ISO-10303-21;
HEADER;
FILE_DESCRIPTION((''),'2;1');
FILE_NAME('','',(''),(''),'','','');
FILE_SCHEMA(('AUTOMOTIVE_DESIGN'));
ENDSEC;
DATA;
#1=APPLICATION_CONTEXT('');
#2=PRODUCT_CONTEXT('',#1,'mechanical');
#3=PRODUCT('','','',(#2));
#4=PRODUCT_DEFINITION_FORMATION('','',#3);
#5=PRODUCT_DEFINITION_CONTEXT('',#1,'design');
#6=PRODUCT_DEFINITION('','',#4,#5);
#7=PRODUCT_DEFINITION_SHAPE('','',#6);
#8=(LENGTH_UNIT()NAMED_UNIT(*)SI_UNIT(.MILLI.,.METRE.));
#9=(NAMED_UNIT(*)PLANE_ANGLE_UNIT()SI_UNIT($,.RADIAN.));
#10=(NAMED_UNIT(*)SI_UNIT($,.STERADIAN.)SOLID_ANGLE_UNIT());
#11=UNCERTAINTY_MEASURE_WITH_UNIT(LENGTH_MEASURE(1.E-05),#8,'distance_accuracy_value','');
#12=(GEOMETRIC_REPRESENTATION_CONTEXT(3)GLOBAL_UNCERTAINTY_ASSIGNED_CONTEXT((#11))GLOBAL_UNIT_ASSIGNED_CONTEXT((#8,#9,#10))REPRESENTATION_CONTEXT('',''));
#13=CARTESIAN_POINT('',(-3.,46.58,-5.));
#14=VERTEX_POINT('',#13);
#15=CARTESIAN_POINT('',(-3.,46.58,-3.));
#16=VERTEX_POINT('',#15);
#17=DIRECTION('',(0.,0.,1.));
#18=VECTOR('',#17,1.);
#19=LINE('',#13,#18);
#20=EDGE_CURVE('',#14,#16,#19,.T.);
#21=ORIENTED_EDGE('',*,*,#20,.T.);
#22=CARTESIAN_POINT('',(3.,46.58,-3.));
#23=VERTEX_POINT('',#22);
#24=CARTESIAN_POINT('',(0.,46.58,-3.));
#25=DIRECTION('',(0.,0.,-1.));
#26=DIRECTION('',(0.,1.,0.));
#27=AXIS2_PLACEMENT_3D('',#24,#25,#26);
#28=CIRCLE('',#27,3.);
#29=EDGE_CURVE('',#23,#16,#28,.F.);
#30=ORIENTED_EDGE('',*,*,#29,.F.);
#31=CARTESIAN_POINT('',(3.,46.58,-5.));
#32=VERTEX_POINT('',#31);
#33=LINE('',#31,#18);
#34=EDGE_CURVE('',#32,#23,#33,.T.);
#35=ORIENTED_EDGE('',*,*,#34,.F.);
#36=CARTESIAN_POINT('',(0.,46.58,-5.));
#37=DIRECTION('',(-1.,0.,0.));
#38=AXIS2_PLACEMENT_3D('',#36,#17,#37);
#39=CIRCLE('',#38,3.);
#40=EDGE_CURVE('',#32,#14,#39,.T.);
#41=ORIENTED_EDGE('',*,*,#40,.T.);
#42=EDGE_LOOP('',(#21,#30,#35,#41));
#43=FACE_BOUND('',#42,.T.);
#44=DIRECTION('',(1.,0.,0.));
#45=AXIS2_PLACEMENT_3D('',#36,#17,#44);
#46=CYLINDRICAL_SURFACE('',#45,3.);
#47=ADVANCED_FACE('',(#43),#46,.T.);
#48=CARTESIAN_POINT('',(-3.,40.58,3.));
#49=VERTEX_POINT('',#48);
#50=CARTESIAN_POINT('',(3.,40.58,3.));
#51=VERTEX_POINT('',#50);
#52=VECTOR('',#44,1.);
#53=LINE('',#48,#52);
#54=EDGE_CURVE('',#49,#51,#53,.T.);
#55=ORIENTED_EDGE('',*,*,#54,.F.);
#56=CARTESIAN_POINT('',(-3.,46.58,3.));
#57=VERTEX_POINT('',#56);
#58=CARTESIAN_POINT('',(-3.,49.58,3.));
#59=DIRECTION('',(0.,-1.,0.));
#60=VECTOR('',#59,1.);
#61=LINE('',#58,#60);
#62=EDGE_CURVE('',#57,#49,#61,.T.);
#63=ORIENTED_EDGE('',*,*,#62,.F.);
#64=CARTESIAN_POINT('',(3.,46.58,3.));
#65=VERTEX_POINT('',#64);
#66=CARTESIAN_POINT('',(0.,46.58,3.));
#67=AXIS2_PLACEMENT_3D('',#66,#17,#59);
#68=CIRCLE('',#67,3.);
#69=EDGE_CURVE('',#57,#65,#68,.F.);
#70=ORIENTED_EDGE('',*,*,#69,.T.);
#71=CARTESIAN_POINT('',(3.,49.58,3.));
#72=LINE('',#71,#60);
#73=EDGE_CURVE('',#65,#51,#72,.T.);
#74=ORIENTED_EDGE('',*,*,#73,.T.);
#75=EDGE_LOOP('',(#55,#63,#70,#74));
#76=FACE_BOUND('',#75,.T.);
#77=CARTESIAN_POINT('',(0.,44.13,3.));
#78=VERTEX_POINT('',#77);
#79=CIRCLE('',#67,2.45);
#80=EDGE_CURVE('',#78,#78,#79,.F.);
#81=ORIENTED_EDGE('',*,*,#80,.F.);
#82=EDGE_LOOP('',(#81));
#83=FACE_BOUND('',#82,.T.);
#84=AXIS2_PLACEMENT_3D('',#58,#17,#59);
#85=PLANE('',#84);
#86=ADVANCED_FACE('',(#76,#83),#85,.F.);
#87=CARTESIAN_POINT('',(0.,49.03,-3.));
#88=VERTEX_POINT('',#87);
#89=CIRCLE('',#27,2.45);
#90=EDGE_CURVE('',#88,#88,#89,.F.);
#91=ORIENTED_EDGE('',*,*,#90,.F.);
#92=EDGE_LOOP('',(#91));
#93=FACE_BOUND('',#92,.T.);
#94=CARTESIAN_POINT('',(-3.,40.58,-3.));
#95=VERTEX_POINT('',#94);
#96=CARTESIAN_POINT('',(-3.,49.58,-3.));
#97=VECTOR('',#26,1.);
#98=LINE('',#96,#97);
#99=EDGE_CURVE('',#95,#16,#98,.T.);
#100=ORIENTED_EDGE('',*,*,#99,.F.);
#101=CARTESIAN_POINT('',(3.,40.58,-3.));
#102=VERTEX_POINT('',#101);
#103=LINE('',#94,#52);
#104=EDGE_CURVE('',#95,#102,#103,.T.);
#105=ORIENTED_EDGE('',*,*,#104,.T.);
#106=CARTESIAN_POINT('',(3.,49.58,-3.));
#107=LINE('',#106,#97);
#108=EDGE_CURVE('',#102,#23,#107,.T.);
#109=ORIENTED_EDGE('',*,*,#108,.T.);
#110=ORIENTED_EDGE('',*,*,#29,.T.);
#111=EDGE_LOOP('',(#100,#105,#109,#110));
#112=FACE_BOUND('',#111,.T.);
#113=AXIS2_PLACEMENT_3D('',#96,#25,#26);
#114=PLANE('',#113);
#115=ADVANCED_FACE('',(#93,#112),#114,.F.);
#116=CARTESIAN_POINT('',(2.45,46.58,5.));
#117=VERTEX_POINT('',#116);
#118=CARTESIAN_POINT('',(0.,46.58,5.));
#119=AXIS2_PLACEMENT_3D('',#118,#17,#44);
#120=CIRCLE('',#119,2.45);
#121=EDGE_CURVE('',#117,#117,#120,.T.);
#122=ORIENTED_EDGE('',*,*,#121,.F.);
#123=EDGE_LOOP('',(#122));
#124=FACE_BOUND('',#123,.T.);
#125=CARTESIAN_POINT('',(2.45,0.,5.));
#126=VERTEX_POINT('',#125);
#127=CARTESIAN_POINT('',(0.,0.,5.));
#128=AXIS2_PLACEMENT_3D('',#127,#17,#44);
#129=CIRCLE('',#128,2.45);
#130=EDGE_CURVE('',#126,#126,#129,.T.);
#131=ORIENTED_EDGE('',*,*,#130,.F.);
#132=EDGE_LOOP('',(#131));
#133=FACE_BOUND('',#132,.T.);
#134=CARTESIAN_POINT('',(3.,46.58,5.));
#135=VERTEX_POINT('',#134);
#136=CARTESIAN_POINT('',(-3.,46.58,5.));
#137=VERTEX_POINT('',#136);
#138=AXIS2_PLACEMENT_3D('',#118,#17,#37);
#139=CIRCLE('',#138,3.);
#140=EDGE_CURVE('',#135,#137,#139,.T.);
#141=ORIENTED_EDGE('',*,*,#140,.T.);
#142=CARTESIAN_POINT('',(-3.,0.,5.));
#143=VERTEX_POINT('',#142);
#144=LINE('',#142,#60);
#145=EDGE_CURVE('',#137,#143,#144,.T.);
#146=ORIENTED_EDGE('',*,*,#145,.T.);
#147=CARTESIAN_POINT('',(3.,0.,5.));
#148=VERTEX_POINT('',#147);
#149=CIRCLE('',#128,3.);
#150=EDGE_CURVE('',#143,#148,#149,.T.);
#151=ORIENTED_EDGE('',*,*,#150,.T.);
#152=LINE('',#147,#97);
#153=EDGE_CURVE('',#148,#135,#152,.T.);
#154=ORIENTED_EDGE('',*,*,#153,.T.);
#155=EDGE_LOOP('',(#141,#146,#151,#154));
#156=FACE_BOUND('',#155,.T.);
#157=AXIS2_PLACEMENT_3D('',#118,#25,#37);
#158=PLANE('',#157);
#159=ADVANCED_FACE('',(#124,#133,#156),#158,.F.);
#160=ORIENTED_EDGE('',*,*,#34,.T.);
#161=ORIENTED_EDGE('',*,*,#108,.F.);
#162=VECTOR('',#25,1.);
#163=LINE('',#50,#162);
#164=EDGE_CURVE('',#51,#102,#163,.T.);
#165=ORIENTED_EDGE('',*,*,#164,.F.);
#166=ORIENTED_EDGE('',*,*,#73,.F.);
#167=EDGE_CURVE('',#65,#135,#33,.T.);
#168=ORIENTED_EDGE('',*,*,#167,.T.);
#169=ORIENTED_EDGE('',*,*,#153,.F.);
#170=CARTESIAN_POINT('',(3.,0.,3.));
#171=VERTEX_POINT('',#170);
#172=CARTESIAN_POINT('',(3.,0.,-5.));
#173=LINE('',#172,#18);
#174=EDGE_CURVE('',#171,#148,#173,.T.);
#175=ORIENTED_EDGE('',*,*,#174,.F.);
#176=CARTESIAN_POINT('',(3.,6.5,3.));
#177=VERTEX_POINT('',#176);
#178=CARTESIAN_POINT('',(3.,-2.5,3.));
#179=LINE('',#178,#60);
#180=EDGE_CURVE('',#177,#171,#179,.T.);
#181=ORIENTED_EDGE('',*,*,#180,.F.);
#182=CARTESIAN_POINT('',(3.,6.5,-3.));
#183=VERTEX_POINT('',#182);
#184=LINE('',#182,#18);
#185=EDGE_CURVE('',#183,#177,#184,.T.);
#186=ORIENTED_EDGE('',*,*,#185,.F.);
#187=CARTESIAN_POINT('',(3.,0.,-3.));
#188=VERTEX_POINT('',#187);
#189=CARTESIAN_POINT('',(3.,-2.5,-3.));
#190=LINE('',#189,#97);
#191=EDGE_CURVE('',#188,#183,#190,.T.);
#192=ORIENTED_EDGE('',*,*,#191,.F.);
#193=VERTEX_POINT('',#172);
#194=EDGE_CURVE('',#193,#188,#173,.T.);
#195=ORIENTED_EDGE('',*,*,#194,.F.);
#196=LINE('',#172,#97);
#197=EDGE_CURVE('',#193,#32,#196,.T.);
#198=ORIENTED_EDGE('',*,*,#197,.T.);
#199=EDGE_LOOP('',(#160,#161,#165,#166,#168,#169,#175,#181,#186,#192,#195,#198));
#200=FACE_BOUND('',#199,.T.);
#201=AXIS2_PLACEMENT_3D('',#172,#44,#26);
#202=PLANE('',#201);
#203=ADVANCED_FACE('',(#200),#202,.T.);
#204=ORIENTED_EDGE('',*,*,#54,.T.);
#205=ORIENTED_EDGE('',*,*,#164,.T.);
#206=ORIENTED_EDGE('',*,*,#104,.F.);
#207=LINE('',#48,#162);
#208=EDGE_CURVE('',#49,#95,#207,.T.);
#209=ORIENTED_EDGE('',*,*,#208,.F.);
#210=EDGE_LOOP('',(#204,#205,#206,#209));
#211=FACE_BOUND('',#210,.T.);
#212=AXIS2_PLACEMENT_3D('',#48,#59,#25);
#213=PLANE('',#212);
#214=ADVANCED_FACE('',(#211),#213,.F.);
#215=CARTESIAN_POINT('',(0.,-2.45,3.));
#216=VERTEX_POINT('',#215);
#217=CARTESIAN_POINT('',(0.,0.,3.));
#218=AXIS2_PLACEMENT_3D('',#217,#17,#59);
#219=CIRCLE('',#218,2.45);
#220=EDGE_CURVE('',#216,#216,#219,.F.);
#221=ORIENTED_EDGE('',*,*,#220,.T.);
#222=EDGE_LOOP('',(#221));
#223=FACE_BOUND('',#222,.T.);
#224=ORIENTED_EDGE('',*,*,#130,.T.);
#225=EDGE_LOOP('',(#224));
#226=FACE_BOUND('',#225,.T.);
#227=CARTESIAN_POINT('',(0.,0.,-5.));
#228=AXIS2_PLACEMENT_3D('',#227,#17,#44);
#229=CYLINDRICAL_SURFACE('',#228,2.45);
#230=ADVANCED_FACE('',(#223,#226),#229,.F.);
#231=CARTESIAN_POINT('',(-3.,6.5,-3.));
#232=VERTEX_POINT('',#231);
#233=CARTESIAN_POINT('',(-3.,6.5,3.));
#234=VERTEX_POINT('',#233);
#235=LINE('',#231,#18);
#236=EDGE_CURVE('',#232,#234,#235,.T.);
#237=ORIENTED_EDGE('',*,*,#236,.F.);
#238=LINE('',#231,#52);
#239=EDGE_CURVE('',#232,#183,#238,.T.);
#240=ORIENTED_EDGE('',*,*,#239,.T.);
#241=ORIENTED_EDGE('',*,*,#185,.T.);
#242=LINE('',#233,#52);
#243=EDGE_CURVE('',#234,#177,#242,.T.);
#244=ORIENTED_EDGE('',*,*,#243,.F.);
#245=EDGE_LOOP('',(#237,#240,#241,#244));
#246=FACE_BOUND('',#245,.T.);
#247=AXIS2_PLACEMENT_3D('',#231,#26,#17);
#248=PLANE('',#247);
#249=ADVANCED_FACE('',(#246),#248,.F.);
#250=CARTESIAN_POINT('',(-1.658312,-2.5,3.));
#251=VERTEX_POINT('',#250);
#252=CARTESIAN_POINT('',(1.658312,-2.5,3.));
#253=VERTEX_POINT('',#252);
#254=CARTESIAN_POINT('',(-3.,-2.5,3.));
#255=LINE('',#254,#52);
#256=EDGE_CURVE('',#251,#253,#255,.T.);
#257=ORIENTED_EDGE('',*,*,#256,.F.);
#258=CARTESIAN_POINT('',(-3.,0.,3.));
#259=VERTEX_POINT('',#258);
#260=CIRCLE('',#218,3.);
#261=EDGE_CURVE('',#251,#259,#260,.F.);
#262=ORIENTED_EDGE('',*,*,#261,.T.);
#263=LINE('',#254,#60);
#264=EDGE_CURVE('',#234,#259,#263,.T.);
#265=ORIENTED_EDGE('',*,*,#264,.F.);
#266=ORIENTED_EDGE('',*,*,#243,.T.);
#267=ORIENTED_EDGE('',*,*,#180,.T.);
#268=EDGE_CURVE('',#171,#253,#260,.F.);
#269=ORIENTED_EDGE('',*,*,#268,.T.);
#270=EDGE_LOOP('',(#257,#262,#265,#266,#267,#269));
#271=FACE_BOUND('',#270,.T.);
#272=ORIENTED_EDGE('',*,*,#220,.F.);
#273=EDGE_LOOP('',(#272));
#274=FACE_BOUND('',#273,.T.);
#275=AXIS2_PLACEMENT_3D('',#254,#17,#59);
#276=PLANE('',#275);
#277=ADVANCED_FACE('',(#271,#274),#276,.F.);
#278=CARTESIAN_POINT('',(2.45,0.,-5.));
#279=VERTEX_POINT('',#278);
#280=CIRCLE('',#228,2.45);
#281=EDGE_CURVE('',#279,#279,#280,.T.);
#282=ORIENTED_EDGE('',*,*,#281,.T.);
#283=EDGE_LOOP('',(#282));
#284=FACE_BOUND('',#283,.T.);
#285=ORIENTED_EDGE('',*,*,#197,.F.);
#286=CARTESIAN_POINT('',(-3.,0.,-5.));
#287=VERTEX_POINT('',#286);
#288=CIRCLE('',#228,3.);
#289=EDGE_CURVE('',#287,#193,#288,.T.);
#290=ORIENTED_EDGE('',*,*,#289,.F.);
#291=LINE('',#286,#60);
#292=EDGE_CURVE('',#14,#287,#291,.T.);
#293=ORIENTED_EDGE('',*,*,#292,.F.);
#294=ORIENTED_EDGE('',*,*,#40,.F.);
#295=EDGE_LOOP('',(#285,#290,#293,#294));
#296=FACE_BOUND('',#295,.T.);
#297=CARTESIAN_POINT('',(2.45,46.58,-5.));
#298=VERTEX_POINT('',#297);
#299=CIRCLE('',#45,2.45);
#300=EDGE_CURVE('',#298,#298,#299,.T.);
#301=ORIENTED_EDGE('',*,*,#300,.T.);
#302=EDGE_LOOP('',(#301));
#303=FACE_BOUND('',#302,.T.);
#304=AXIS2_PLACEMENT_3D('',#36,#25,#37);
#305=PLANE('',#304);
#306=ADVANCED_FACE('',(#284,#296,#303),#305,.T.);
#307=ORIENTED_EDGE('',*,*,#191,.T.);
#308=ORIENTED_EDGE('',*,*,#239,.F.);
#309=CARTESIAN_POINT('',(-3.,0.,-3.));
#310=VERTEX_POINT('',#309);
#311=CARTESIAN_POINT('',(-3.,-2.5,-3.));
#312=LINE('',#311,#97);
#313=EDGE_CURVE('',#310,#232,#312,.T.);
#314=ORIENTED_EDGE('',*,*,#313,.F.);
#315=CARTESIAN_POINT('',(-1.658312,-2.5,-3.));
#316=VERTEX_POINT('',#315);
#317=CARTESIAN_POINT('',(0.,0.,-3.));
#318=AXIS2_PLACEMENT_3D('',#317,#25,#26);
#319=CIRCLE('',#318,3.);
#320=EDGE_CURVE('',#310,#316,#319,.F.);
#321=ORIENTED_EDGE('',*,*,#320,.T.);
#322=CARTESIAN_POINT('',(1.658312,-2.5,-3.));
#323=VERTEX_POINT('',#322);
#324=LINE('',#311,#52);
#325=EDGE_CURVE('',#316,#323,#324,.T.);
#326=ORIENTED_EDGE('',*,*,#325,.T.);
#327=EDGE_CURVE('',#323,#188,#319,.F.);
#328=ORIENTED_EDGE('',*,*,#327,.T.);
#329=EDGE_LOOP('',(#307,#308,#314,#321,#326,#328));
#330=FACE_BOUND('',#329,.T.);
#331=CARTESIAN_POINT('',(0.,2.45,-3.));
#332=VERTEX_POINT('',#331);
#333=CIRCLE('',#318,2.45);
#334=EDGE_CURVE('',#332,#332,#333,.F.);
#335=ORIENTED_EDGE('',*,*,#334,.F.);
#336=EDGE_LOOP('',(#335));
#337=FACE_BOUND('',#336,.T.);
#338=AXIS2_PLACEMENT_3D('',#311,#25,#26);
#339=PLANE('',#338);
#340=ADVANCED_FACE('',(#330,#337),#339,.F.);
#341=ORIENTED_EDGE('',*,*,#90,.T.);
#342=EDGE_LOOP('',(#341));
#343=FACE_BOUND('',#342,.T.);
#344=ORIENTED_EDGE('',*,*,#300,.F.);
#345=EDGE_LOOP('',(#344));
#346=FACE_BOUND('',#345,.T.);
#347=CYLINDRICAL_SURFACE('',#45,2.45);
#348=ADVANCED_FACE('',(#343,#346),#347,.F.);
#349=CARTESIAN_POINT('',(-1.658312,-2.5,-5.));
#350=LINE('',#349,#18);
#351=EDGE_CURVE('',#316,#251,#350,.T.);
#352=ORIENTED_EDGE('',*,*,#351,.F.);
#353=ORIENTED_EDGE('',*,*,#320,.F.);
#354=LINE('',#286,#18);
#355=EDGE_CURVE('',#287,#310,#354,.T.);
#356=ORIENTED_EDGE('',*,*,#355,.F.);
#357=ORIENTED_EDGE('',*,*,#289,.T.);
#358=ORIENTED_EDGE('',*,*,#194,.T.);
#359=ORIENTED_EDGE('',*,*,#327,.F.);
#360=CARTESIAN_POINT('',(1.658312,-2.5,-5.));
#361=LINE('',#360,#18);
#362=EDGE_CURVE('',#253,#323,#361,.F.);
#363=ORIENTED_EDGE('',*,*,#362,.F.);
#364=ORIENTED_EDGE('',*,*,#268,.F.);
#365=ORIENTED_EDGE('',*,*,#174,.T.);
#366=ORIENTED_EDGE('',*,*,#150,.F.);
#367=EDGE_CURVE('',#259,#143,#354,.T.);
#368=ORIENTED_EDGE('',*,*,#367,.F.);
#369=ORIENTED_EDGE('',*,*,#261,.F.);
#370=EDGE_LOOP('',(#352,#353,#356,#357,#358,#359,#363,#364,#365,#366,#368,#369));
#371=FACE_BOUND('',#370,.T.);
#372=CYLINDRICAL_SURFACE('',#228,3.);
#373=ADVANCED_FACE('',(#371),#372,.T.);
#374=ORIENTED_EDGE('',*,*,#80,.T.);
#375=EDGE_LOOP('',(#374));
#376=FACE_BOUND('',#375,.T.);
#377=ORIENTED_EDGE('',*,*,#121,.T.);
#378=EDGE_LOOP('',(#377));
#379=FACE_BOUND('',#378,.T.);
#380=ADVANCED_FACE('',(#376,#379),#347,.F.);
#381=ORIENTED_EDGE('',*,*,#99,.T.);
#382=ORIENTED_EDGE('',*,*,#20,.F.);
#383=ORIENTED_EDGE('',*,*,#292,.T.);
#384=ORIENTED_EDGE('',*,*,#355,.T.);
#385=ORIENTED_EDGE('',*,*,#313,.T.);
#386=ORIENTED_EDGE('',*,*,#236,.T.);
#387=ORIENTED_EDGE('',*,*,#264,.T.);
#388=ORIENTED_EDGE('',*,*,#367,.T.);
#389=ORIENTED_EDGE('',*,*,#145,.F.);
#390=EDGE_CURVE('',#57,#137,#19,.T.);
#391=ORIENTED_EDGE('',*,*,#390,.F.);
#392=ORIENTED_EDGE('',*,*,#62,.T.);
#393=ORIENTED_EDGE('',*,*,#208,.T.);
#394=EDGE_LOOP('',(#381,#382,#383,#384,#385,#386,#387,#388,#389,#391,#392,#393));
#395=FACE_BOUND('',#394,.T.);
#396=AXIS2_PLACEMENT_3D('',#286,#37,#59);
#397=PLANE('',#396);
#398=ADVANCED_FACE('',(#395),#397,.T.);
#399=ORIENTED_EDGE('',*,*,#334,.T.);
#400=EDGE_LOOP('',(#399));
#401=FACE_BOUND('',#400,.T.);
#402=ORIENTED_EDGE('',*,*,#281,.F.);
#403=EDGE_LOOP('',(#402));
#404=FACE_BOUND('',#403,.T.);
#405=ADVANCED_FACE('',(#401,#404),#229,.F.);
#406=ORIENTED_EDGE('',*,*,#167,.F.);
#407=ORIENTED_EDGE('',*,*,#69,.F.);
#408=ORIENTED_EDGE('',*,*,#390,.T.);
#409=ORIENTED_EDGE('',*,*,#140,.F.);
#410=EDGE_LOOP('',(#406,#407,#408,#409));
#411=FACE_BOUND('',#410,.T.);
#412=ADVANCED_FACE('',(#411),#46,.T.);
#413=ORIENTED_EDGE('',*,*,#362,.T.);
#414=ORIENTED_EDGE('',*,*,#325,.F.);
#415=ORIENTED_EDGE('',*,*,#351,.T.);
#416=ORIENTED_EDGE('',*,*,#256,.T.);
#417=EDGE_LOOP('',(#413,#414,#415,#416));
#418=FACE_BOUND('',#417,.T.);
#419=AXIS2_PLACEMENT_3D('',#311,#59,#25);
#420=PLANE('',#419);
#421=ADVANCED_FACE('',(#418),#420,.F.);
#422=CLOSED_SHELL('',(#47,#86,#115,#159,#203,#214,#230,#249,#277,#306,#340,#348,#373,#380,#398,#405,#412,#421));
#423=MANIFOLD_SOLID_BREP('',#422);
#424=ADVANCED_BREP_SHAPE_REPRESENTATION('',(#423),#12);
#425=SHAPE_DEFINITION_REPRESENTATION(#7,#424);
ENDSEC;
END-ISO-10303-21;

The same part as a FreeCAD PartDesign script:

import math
import FreeCAD as App
import Part
import Sketcher

V = App.Vector
Q = App.Units.Quantity


def add_polygon(sketch, points):
    """Adds a closed chain of lines whose ends are joined by coincident constraints."""
    first, n = sketch.GeometryCount, len(points)
    for a, b in zip(points, points[1:] + points[:1]):
        sketch.addGeometry(Part.LineSegment(App.Vector(*a, 0), App.Vector(*b, 0)), False)
    for i in range(n):
        sketch.addConstraint(Sketcher.Constraint("Coincident", first + i, 2, first + (i + 1) % n, 1))

doc = App.newDocument("Part")
body = doc.addObject("PartDesign::Body", "Body")

# Sketch on XY plane
sketch1 = body.newObject("Sketcher::SketchObject", "Sketch")
sketch1.AttachmentSupport = (doc.getObject("XY_Plane"), [""])
sketch1.MapMode = "FlatFace"
sketch1.addGeometry(Part.LineSegment(V(-3, 46.6, 0), V(-3, 0, 0)), False)
sketch1.addGeometry(Part.ArcOfCircle(Part.Circle(V(0, 0, 0), V(0, 0, 1), 3), math.radians(180), math.radians(360)), False)
sketch1.addGeometry(Part.LineSegment(V(3, 0, 0), V(3, 46.6, 0)), False)
sketch1.addGeometry(Part.ArcOfCircle(Part.Circle(V(0, 46.6, 0), V(0, 0, 1), 3), math.radians(0), math.radians(180)), False)
sketch1.addGeometry(Part.Circle(V(0, 0, 0), V(0, 0, 1), 2.5), False)
sketch1.addGeometry(Part.Circle(V(0, 46.6, 0), V(0, 0, 1), 2.5), False)
sketch1.addConstraint(Sketcher.Constraint("Tangent", 0, 2, 1, 1))
sketch1.addConstraint(Sketcher.Constraint("Tangent", 1, 2, 2, 1))
sketch1.addConstraint(Sketcher.Constraint("Tangent", 2, 2, 3, 1))
sketch1.addConstraint(Sketcher.Constraint("Tangent", 3, 2, 0, 1))
sketch1.addConstraint(Sketcher.Constraint("Vertical", 0))
sketch1.addConstraint(Sketcher.Constraint("Vertical", 2))
sketch1.addConstraint(Sketcher.Constraint("Coincident", 1, 3, -1, 1))
sketch1.addConstraint(Sketcher.Constraint("Coincident", 4, 3, -1, 1))
sketch1.addConstraint(Sketcher.Constraint("Coincident", 5, 3, 3, 3))
sketch1.addConstraint(Sketcher.Constraint("Equal", 4, 5))
sketch1.addConstraint(Sketcher.Constraint("Radius", 1, Q("3 mm")))
sketch1.addConstraint(Sketcher.Constraint("Diameter", 4, Q("4.9 mm")))
sketch1.addConstraint(Sketcher.Constraint("DistanceY", 0, 2, 0, 1, Q("46.58 mm")))
pad1 = body.newObject("PartDesign::Pad", "Pad")
pad1.Profile = sketch1
pad1.Type = "TwoLengths"
pad1.Length = 5
pad1.Length2 = 5

# Sketch on YZ plane
sketch2 = body.newObject("Sketcher::SketchObject", "Sketch001")
sketch2.AttachmentSupport = (doc.getObject("YZ_Plane"), [""])
sketch2.MapMode = "FlatFace"
add_polygon(sketch2, [(50, 3), (41, 3), (41, -3), (50, -3)])  # lines 0-3
add_polygon(sketch2, [(6, 3), (-2, 3), (-2, -3), (6, -3)])  # lines 4-7
sketch2.addConstraint(Sketcher.Constraint("Horizontal", 0))
sketch2.addConstraint(Sketcher.Constraint("Vertical", 1))
sketch2.addConstraint(Sketcher.Constraint("Horizontal", 2))
sketch2.addConstraint(Sketcher.Constraint("Vertical", 3))
sketch2.addConstraint(Sketcher.Constraint("Horizontal", 4))
sketch2.addConstraint(Sketcher.Constraint("Vertical", 5))
sketch2.addConstraint(Sketcher.Constraint("Horizontal", 6))
sketch2.addConstraint(Sketcher.Constraint("Vertical", 7))
sketch2.addConstraint(Sketcher.Constraint("Horizontal", 3, 2, 4, 2))
sketch2.addConstraint(Sketcher.Constraint("Horizontal", 2, 2, 5, 2))
sketch2.addConstraint(Sketcher.Constraint("Equal", 2, 4))
sketch2.addConstraint(Sketcher.Constraint("DistanceX", 0, 2, 0, 1, Q("9 mm")))
sketch2.addConstraint(Sketcher.Constraint("DistanceY", 1, 2, 1, 1, Q("6 mm")))
sketch2.addConstraint(Sketcher.Constraint("DistanceY", -1, 1, 0, 2, Q("3 mm")))
sketch2.addConstraint(Sketcher.Constraint("DistanceX", 4, 2, -1, 1, Q("2.5 mm")))
sketch2.addConstraint(Sketcher.Constraint("DistanceX", -1, 1, 0, 2, Q("40.58 mm")))
pocket1 = body.newObject("PartDesign::Pocket", "Pocket")
pocket1.Profile = sketch2
pocket1.Type = "ThroughAll"
pocket1.Midplane = True

doc.recompute()
